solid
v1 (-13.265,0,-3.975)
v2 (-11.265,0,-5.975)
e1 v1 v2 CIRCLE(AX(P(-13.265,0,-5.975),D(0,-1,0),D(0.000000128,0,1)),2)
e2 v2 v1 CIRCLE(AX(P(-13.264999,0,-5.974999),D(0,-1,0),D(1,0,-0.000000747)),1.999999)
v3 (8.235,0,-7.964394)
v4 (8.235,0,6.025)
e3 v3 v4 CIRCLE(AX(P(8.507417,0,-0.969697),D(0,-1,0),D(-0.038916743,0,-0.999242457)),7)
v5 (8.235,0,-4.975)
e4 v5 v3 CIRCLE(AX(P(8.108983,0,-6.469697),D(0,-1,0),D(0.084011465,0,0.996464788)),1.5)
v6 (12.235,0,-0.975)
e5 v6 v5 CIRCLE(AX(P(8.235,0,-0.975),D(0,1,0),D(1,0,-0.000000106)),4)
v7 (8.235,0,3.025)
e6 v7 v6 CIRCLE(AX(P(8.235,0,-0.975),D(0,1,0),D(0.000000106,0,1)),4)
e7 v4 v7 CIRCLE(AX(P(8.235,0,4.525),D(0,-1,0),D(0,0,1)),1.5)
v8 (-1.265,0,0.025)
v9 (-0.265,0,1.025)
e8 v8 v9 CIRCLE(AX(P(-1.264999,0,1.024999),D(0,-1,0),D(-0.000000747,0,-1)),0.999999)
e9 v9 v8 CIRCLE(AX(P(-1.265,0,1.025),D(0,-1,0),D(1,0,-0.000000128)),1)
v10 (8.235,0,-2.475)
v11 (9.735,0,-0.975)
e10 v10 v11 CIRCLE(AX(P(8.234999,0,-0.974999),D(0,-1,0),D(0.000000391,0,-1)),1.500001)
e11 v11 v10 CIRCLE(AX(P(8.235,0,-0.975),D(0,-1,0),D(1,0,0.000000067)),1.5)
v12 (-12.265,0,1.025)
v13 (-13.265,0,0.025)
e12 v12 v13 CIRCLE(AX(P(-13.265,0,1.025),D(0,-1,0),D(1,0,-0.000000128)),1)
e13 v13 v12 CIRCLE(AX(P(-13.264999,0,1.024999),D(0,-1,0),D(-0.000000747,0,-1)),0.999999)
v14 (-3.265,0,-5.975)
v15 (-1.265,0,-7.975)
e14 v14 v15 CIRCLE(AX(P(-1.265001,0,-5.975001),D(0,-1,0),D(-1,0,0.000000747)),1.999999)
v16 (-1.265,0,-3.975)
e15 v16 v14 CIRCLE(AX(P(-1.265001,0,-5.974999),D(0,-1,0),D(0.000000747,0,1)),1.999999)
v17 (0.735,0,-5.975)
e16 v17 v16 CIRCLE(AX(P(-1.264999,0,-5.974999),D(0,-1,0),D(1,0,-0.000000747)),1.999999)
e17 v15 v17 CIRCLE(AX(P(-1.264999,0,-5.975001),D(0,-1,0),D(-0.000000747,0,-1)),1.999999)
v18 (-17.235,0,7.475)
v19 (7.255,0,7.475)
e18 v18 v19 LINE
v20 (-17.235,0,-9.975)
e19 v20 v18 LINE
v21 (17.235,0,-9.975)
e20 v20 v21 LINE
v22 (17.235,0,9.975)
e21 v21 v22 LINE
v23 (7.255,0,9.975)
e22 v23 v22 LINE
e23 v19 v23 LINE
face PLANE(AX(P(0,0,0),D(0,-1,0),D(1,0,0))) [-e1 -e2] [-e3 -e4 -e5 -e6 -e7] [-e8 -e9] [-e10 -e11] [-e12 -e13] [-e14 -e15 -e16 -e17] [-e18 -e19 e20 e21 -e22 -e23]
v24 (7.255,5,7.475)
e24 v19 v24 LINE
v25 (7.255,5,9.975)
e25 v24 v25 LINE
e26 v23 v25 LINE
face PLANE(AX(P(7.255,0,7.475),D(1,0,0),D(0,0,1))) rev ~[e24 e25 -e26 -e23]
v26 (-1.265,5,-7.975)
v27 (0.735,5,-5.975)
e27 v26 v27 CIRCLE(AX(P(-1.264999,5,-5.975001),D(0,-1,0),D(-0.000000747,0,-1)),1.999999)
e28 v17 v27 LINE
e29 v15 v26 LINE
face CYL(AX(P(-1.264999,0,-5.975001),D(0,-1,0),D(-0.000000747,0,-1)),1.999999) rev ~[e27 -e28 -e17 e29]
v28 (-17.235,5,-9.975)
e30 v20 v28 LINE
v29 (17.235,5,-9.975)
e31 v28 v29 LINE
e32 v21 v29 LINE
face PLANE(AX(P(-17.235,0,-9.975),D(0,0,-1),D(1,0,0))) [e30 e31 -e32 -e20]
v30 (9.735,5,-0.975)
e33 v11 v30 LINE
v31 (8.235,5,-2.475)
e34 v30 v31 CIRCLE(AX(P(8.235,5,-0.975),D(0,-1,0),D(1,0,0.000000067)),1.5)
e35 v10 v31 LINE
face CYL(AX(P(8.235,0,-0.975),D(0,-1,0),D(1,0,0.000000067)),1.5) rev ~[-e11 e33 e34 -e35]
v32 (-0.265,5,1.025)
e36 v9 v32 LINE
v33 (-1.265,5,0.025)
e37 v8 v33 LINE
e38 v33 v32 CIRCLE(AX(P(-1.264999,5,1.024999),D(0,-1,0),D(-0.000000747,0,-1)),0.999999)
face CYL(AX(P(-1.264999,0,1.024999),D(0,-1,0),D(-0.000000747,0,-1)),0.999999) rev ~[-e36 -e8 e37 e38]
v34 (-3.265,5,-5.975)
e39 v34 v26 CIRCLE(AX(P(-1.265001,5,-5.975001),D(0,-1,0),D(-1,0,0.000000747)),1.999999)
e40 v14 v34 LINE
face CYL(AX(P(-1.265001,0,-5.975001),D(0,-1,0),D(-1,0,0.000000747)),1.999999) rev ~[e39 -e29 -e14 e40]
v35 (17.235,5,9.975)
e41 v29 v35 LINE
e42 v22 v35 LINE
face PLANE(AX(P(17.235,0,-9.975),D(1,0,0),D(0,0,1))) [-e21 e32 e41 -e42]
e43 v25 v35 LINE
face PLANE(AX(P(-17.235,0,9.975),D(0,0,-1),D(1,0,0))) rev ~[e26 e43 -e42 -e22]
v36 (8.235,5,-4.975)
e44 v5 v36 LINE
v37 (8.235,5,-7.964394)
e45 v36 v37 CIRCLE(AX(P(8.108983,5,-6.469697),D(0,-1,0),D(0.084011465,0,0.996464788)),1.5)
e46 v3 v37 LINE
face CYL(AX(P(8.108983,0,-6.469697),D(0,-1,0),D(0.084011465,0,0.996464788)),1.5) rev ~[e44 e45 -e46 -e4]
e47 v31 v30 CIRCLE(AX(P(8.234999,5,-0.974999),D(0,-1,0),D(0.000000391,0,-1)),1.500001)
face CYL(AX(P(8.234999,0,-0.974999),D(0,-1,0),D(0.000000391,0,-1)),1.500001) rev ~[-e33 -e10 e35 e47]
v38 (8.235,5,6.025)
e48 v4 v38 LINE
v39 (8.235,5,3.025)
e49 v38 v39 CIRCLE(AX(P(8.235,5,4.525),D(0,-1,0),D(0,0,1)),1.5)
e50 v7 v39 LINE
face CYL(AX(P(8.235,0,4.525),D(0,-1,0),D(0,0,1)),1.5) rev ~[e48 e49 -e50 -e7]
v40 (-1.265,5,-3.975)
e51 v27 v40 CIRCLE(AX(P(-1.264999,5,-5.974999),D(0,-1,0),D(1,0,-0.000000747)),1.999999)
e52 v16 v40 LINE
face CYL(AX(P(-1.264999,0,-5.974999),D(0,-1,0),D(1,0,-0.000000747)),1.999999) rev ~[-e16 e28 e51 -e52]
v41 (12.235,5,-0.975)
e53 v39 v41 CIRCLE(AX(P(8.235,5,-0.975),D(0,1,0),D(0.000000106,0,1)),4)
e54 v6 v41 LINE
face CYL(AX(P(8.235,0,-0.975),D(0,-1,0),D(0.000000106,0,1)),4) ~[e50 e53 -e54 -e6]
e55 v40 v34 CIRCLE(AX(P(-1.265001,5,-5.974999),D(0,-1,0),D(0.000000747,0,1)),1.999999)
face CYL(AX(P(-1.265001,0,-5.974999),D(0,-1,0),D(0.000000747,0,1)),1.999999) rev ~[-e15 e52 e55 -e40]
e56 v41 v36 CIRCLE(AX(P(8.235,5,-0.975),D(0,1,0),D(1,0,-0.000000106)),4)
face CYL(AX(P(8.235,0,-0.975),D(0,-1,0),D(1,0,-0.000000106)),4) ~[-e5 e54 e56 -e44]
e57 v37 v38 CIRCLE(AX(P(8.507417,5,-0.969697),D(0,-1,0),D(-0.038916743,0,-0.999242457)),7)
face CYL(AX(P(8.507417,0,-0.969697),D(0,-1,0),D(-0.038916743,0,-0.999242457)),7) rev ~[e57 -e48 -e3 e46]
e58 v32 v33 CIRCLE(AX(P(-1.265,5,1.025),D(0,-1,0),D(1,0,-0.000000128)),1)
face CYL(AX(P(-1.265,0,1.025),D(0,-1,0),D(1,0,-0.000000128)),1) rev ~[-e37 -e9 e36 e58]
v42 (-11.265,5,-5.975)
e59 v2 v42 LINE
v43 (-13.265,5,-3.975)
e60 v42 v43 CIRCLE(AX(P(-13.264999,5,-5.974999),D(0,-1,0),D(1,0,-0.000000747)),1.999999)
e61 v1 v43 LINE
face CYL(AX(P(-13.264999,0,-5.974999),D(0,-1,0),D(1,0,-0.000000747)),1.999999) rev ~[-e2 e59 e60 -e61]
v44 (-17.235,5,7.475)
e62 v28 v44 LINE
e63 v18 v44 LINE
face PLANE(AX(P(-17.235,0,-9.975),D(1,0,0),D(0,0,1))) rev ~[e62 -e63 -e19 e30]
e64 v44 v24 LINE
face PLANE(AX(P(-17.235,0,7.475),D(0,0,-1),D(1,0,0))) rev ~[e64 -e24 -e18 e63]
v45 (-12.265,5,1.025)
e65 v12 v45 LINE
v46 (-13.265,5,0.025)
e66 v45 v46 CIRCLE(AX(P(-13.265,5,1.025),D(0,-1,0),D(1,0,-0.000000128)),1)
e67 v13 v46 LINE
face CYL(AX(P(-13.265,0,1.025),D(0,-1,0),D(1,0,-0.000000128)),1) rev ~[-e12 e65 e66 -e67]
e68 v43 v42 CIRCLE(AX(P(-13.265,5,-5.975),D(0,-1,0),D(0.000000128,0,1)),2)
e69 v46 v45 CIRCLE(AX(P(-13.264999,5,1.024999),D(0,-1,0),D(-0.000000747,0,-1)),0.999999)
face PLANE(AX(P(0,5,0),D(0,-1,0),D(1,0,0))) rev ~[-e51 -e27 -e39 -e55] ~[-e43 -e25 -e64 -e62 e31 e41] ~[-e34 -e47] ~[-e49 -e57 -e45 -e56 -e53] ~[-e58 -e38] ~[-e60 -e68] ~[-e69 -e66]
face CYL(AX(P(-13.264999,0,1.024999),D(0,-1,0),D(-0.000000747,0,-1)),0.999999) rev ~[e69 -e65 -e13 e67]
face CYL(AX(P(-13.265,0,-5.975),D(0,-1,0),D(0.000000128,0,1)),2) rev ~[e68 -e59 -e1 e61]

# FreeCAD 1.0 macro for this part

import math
import FreeCAD as App
import Part
import Sketcher

doc = App.newDocument("Part")
body = doc.addObject("PartDesign::Body", "Body")

# Sketch on XZ plane
sketch1 = body.newObject("Sketcher::SketchObject", "Sketch")
sketch1.AttachmentSupport = (doc.getObject("XZ_Plane"), [""])
sketch1.MapMode = "FlatFace"
sketch1.addGeometry(Part.LineSegment(App.Vector(-17.235, 9.975, 0), App.Vector(-17.235, -9.975, 0)), False)
sketch1.addGeometry(Part.LineSegment(App.Vector(-17.235, -9.975, 0), App.Vector(17.235, -9.975, 0)), False)
sketch1.addGeometry(Part.LineSegment(App.Vector(17.235, -9.975, 0), App.Vector(17.235, 9.975, 0)), False)
sketch1.addGeometry(Part.LineSegment(App.Vector(17.235, 9.975, 0), App.Vector(-17.235, 9.975, 0)), False)
sketch1.addConstraint(Sketcher.Constraint("Coincident", 0, 2, 1, 1))
sketch1.addConstraint(Sketcher.Constraint("Coincident", 1, 2, 2, 1))
sketch1.addConstraint(Sketcher.Constraint("Coincident", 2, 2, 3, 1))
sketch1.addConstraint(Sketcher.Constraint("Coincident", 3, 2, 0, 1))
sketch1.addConstraint(Sketcher.Constraint("Vertical", 0))
sketch1.addConstraint(Sketcher.Constraint("Horizontal", 1))
sketch1.addConstraint(Sketcher.Constraint("Vertical", 2))
sketch1.addConstraint(Sketcher.Constraint("Horizontal", 3))
sketch1.addConstraint(Sketcher.Constraint("Symmetric", 0, 2, 2, 2, -1, 1))
sketch1.addConstraint(Sketcher.Constraint("DistanceX", 1, 1, 1, 2, 34.47))
sketch1.addConstraint(Sketcher.Constraint("DistanceY", 0, 2, 0, 1, 19.95))
pad1 = body.newObject("PartDesign::Pad", "Pad")
pad1.Profile = sketch1
pad1.Length = 5
pad1.Reversed = True

# Sketch on XZ plane
sketch2 = body.newObject("Sketcher::SketchObject", "Sketch001")
sketch2.AttachmentSupport = (doc.getObject("XZ_Plane"), [""])
sketch2.MapMode = "FlatFace"
sketch2.addGeometry(Part.LineSegment(App.Vector(-17.235, 9.975, 0), App.Vector(-17.235, 7.475, 0)), False)
sketch2.addGeometry(Part.LineSegment(App.Vector(-17.235, 7.475, 0), App.Vector(7.255, 7.475, 0)), False)
sketch2.addGeometry(Part.LineSegment(App.Vector(7.255, 7.475, 0), App.Vector(7.255, 9.975, 0)), False)
sketch2.addGeometry(Part.LineSegment(App.Vector(7.255, 9.975, 0), App.Vector(-17.235, 9.975, 0)), False)
sketch2.addConstraint(Sketcher.Constraint("Coincident", 0, 2, 1, 1))
sketch2.addConstraint(Sketcher.Constraint("Coincident", 1, 2, 2, 1))
sketch2.addConstraint(Sketcher.Constraint("Coincident", 2, 2, 3, 1))
sketch2.addConstraint(Sketcher.Constraint("Coincident", 3, 2, 0, 1))
sketch2.addConstraint(Sketcher.Constraint("Vertical", 0))
sketch2.addConstraint(Sketcher.Constraint("Horizontal", 1))
sketch2.addConstraint(Sketcher.Constraint("Vertical", 2))
sketch2.addConstraint(Sketcher.Constraint("Horizontal", 3))
sketch2.addConstraint(Sketcher.Constraint("DistanceY", 0, 2, 0, 1, 2.5))
sketch2.addConstraint(Sketcher.Constraint("DistanceX", 1, 1, 1, 2, 24.49))
sketch2.addConstraint(Sketcher.Constraint("DistanceX", 0, 2, -1, 1, 17.235))
sketch2.addConstraint(Sketcher.Constraint("DistanceY", -1, 1, 0, 2, 7.475))
pocket1 = body.newObject("PartDesign::Pocket", "Pocket")
pocket1.Profile = sketch2
pocket1.Type = "ThroughAll"

# Sketch on XZ plane
sketch3 = body.newObject("Sketcher::SketchObject", "Sketch002")
sketch3.AttachmentSupport = (doc.getObject("XZ_Plane"), [""])
sketch3.MapMode = "FlatFace"
sketch3.addGeometry(Part.ArcOfCircle(Part.Circle(App.Vector(-1.265001, -5.975001, 0), App.Vector(0, 0, 1), 1.999999), math.radians(179.999957), math.radians(270.000043)), False)
sketch3.addGeometry(Part.ArcOfCircle(Part.Circle(App.Vector(-1.264999, -5.975001, 0), App.Vector(0, 0, 1), 1.999999), math.radians(-90.000043), math.radians(0.000043)), False)
sketch3.addGeometry(Part.ArcOfCircle(Part.Circle(App.Vector(-1.264999, -5.974999, 0), App.Vector(0, 0, 1), 1.999999), math.radians(-0.000043), math.radians(90.000043)), False)
sketch3.addGeometry(Part.ArcOfCircle(Part.Circle(App.Vector(-1.265001, -5.974999, 0), App.Vector(0, 0, 1), 1.999999), math.radians(89.999957), math.radians(180.000043)), False)
sketch3.addGeometry(Part.ArcOfCircle(Part.Circle(App.Vector(-13.265, 1.025, 0), App.Vector(0, 0, 1), 1), math.radians(-0.000007), math.radians(270.000007)), False)
sketch3.addGeometry(Part.ArcOfCircle(Part.Circle(App.Vector(-13.264999, 1.024999, 0), App.Vector(0, 0, 1), 0.999999), math.radians(-90.000043), math.radians(0.000043)), False)
sketch3.addGeometry(Part.ArcOfCircle(Part.Circle(App.Vector(-13.265, -5.975, 0), App.Vector(0, 0, 1), 2), math.radians(89.999993), math.radians(360.000007)), False)
sketch3.addGeometry(Part.ArcOfCircle(Part.Circle(App.Vector(-13.264999, -5.974999, 0), App.Vector(0, 0, 1), 1.999999), math.radians(-0.000043), math.radians(90.000043)), False)
sketch3.addGeometry(Part.ArcOfCircle(Part.Circle(App.Vector(-1.265, 1.025, 0), App.Vector(0, 0, 1), 1), math.radians(-0.000007), math.radians(270.000007)), False)
sketch3.addGeometry(Part.ArcOfCircle(Part.Circle(App.Vector(-1.264999, 1.024999, 0), App.Vector(0, 0, 1), 0.999999), math.radians(-90.000043), math.radians(0.000043)), False)
sketch3.addConstraint(Sketcher.Constraint("Tangent", 0, 2, 1, 1))
sketch3.addConstraint(Sketcher.Constraint("Tangent", 1, 2, 2, 1))
sketch3.addConstraint(Sketcher.Constraint("Tangent", 2, 2, 3, 1))
sketch3.addConstraint(Sketcher.Constraint("Tangent", 3, 2, 0, 1))
sketch3.addConstraint(Sketcher.Constraint("Tangent", 4, 1, 5, 2))
sketch3.addConstraint(Sketcher.Constraint("Coincident", 5, 1, 4, 2))
sketch3.addConstraint(Sketcher.Constraint("Tangent", 6, 1, 7, 2))
sketch3.addConstraint(Sketcher.Constraint("Coincident", 7, 1, 6, 2))
sketch3.addConstraint(Sketcher.Constraint("Tangent", 8, 1, 9, 2))
sketch3.addConstraint(Sketcher.Constraint("Coincident", 9, 1, 8, 2))
sketch3.addConstraint(Sketcher.Constraint("Equal", 0, 1))
sketch3.addConstraint(Sketcher.Constraint("Equal", 3, 6))
sketch3.addConstraint(Sketcher.Constraint("Equal", 5, 8))
sketch3.addConstraint(Sketcher.Constraint("Horizontal", 3, 3, 6, 3))
sketch3.addConstraint(Sketcher.Constraint("Horizontal", 5, 3, 8, 3))
sketch3.addConstraint(Sketcher.Constraint("Horizontal", 7, 3, 1, 2))
sketch3.addConstraint(Sketcher.Constraint("Horizontal", 1, 2, 3, 2))
sketch3.addConstraint(Sketcher.Constraint("Horizontal", 9, 3, 4, 1))
sketch3.addConstraint(Sketcher.Constraint("Horizontal", 3, 2, 7, 1))
sketch3.addConstraint(Sketcher.Constraint("Horizontal", 4, 1, 8, 1))
sketch3.addConstraint(Sketcher.Constraint("Vertical", 5, 3, 6, 3))
sketch3.addConstraint(Sketcher.Constraint("Vertical", 3, 3, 8, 3))
sketch3.addConstraint(Sketcher.Constraint("Vertical", 9, 3, 0, 2))
sketch3.addConstraint(Sketcher.Constraint("Vertical", 0, 2, 2, 2))
sketch3.addConstraint(Sketcher.Constraint("Vertical", 7, 3, 5, 1))
sketch3.addConstraint(Sketcher.Constraint("Vertical", 5, 1, 6, 1))
sketch3.addConstraint(Sketcher.Constraint("Vertical", 2, 2, 9, 1))
sketch3.addConstraint(Sketcher.Constraint("Radius", 0, 1.999999))
sketch3.addConstraint(Sketcher.Constraint("Radius", 4, 1.0))
sketch3.addConstraint(Sketcher.Constraint("DistanceX", 4, 3, 3, 3, 11.999999))
sketch3.addConstraint(Sketcher.Constraint("DistanceY", 3, 3, 4, 3, 6.999999))
sketch3.addConstraint(Sketcher.Constraint("DistanceX", 0, 3, -1, 1, 1.265001))
sketch3.addConstraint(Sketcher.Constraint("DistanceY", 0, 3, -1, 1, 5.975001))
pocket2 = body.newObject("PartDesign::Pocket", "Pocket001")
pocket2.Profile = sketch3
pocket2.Type = "ThroughAll"

# Sketch on XZ plane
sketch4 = body.newObject("Sketcher::SketchObject", "Sketch003")
sketch4.AttachmentSupport = (doc.getObject("XZ_Plane"), [""])
sketch4.MapMode = "FlatFace"
sketch4.addGeometry(Part.ArcOfCircle(Part.Circle(App.Vector(8.108983, -6.469697, 0), App.Vector(0, 0, 1), 1.5), math.radians(85.180817), math.radians(274.819183)), False)
sketch4.addGeometry(Part.ArcOfCircle(Part.Circle(App.Vector(8.507417, -0.969697, 0), App.Vector(0, 0, 1), 7), math.radians(-92.230328), math.radians(92.230328)), False)
sketch4.addGeometry(Part.ArcOfCircle(Part.Circle(App.Vector(8.235, 4.525, 0), App.Vector(0, 0, 1), 1.5), math.radians(90), math.radians(270)), False)
sketch4.addGeometry(Part.ArcOfCircle(Part.Circle(App.Vector(8.235, -0.975, 0), App.Vector(0, 0, 1), 4), math.radians(0.000006), math.radians(89.999994)), False)
sketch4.addGeometry(Part.ArcOfCircle(Part.Circle(App.Vector(8.235, -0.975, 0), App.Vector(0, 0, 1), 4), math.radians(-89.999994), math.radians(-0.000006)), False)
sketch4.addGeometry(Part.ArcOfCircle(Part.Circle(App.Vector(8.235, -0.975, 0), App.Vector(0, 0, 1), 1.5), math.radians(0.000004), math.radians(269.999996)), False)
sketch4.addGeometry(Part.ArcOfCircle(Part.Circle(App.Vector(8.234999, -0.974999, 0), App.Vector(0, 0, 1), 1.500001), math.radians(-89.999978), math.radians(-0.000022)), False)
sketch4.addConstraint(Sketcher.Constraint("Coincident", 0, 2, 1, 1))
sketch4.addConstraint(Sketcher.Constraint("Coincident", 1, 2, 2, 1))
sketch4.addConstraint(Sketcher.Constraint("Tangent", 2, 2, 3, 2))
sketch4.addConstraint(Sketcher.Constraint("Tangent", 3, 1, 4, 2))
sketch4.addConstraint(Sketcher.Constraint("Coincident", 4, 1, 0, 1))
sketch4.addConstraint(Sketcher.Constraint("Tangent", 5, 1, 6, 2))
sketch4.addConstraint(Sketcher.Constraint("Coincident", 6, 1, 5, 2))
sketch4.addConstraint(Sketcher.Constraint("Coincident", 5, 3, 3, 3))
sketch4.addConstraint(Sketcher.Constraint("Equal", 0, 2))
sketch4.addConstraint(Sketcher.Constraint("Equal", 3, 4))
sketch4.addConstraint(Sketcher.Constraint("Equal", 2, 5))
sketch4.addConstraint(Sketcher.Constraint("Horizontal", 6, 3, 3, 1))
sketch4.addConstraint(Sketcher.Constraint("Horizontal", 3, 1, 5, 1))
sketch4.addConstraint(Sketcher.Constraint("Vertical", 2, 3, 3, 3))
sketch4.addConstraint(Sketcher.Constraint("Vertical", 6, 3, 0, 2))
sketch4.addConstraint(Sketcher.Constraint("Vertical", 0, 2, 1, 2))
sketch4.addConstraint(Sketcher.Constraint("Vertical", 2, 2, 4, 1))
sketch4.addConstraint(Sketcher.Constraint("Vertical", 4, 1, 6, 1))
sketch4.addConstraint(Sketcher.Constraint("Radius", 1, 7.0))
sketch4.addConstraint(Sketcher.Constraint("Radius", 3, 4.0))
sketch4.addConstraint(Sketcher.Constraint("Radius", 0, 1.5))
sketch4.addConstraint(Sketcher.Constraint("DistanceX", -1, 1, 2, 3, 8.235))
sketch4.addConstraint(Sketcher.Constraint("DistanceY", -1, 1, 2, 3, 4.525))
sketch4.addConstraint(Sketcher.Constraint("DistanceX", -1, 1, 0, 3, 8.108983))
pocket3 = body.newObject("PartDesign::Pocket", "Pocket002")
pocket3.Profile = sketch4
pocket3.Type = "ThroughAll"

doc.recompute()
